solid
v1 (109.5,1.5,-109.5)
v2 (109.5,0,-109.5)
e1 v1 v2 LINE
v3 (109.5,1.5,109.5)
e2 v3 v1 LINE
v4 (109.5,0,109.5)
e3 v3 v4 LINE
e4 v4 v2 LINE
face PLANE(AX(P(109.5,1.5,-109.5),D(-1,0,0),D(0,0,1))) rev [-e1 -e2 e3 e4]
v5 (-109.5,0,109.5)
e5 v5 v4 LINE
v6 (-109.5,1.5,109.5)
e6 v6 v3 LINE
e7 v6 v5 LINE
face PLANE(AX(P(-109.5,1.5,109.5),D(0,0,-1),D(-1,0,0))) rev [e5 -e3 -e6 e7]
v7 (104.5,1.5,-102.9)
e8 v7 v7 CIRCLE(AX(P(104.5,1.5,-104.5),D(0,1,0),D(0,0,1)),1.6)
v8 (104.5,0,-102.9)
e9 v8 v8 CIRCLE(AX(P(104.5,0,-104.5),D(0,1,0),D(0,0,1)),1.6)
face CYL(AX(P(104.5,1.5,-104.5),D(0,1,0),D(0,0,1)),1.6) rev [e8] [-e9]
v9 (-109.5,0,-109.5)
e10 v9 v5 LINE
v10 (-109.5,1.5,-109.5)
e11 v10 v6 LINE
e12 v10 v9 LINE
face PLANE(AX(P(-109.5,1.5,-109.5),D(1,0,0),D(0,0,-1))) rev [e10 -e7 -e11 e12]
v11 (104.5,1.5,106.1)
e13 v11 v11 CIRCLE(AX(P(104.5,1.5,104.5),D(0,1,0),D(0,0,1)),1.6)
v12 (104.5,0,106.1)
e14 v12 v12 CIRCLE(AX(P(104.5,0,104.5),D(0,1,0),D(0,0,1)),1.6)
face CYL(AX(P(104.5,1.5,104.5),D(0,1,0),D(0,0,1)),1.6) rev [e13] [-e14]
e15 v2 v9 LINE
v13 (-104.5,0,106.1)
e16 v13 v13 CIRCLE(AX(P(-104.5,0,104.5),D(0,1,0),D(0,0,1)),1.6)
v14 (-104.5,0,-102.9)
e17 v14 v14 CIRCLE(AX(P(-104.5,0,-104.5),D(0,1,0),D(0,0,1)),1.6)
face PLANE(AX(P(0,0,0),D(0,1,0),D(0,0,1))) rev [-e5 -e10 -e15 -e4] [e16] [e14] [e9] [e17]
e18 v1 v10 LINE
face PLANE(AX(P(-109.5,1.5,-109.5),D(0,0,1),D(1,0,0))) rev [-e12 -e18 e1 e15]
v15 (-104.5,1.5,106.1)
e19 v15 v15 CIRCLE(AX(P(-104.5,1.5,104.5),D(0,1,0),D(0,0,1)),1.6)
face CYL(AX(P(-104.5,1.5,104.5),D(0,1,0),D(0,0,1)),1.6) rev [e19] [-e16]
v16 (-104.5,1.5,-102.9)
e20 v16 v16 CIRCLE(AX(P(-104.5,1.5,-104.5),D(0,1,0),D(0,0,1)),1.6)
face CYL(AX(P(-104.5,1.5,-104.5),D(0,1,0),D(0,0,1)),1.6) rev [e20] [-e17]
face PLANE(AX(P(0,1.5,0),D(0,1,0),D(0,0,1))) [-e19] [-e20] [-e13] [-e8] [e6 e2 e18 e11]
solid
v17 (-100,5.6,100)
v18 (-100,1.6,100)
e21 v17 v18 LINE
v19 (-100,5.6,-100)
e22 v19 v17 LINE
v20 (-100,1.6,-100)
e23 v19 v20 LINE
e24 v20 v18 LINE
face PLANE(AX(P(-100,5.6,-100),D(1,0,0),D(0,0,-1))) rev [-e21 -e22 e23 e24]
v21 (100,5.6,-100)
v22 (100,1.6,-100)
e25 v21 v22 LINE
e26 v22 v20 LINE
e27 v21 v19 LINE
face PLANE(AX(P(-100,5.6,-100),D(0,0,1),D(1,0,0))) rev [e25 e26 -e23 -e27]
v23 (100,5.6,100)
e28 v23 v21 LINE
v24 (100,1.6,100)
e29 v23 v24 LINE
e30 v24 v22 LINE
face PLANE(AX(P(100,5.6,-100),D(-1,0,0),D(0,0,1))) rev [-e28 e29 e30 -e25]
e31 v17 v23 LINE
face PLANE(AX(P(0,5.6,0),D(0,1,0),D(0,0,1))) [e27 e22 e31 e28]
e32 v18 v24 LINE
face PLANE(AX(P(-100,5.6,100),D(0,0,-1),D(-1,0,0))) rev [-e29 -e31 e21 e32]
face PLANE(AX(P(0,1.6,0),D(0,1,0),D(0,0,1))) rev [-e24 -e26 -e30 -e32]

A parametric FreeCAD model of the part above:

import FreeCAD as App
import Part
import Sketcher
Q = App.Units.Quantity

doc = App.newDocument("Part")
params = doc.addObject("Spreadsheet::Sheet", "Params")
for row, (alias, value) in enumerate([
    ("sketch1_width", "219 mm"),
    ("pad1_length", "1.5 mm"),
    ("sketch2_diameter", "3.2 mm"),
    ("hole_diameter", "3.2 mm"),
    ("sketch3_width", "200 mm"),
    ("pad2_length", "4 mm"),
], start=1):
    params.set(f"A{row}", alias)
    params.set(f"B{row}", "=" + value)
    params.setAlias(f"B{row}", alias)

body = doc.addObject("PartDesign::Body", "Body")

# Sketch on XZ plane
sketch1 = body.newObject("Sketcher::SketchObject", "Sketch")
sketch1.AttachmentSupport = (doc.getObject("XZ_Plane"), [""])
sketch1.MapMode = "FlatFace"
sketch1.addGeometry([
    Part.LineSegment(App.Vector(-110, -110, 0), App.Vector(-110, 110, 0)),
    Part.LineSegment(App.Vector(-110, 110, 0), App.Vector(110, 110, 0)),
    Part.LineSegment(App.Vector(110, 110, 0), App.Vector(110, -110, 0)),
    Part.LineSegment(App.Vector(110, -110, 0), App.Vector(-110, -110, 0)),
], False)
sketch1.addConstraint([
    Sketcher.Constraint("Coincident", 0, 2, 1, 1),
    Sketcher.Constraint("Coincident", 1, 2, 2, 1),
    Sketcher.Constraint("Coincident", 2, 2, 3, 1),
    Sketcher.Constraint("Coincident", 3, 2, 0, 1),
    Sketcher.Constraint("Vertical", 0),
    Sketcher.Constraint("Horizontal", 1),
    Sketcher.Constraint("Vertical", 2),
    Sketcher.Constraint("Horizontal", 3),
    Sketcher.Constraint("Symmetric", 0, 2, 2, 2, -1, 1),
    Sketcher.Constraint("Equal", 3, 0),
    Sketcher.Constraint("DistanceX", 1, 1, 1, 2, Q("219 mm")),
])
sketch1.setExpression("Constraints[10]", "Params.sketch1_width")
pad1 = body.newObject("PartDesign::Pad", "Pad")
pad1.Profile = sketch1
pad1.setExpression("Length", "Params.pad1_length")
pad1.Reversed = True

# Sketch on XZ plane
sketch2 = body.newObject("Sketcher::SketchObject", "Sketch001")
sketch2.AttachmentSupport = (doc.getObject("XZ_Plane"), [""])
sketch2.MapMode = "FlatFace"
sketch2.AttachmentOffset = App.Placement(App.Vector(0, 0, -1.5), App.Rotation())
sketch2.addGeometry([
    Part.Circle(App.Vector(-104.5, -104.5, 0), App.Vector(0, 0, 1), 1.6),
    Part.Circle(App.Vector(104.5, -104.5, 0), App.Vector(0, 0, 1), 1.6),
    Part.Circle(App.Vector(104.5, 104.5, 0), App.Vector(0, 0, 1), 1.6),
    Part.Circle(App.Vector(-104.5, 104.5, 0), App.Vector(0, 0, 1), 1.6),
], False)
sketch2.addConstraint([
    Sketcher.Constraint("Equal", 0, 1),
    Sketcher.Constraint("Equal", 1, 2),
    Sketcher.Constraint("Equal", 2, 3),
    Sketcher.Constraint("Symmetric", 0, 3, 2, 3, -1, 1),
    Sketcher.Constraint("Symmetric", 1, 3, 3, 3, -1, 1),
    Sketcher.Constraint("Symmetric", 0, 3, 1, 3, -2),
    Sketcher.Constraint("Diameter", 0, Q("3.2 mm")),
    Sketcher.Constraint("DistanceX", 0, 3, 1, 3, Q("209 mm")),
    Sketcher.Constraint("DistanceY", 1, 3, 2, 3, Q("209 mm")),
])
sketch2.setExpression("Constraints[6]", "Params.sketch2_diameter")
doc.recompute()
hole = body.newObject("PartDesign::Hole", "Hole")
hole.Profile = sketch2
hole.ThreadType = "None"
hole.setExpression("Diameter", "Params.hole_diameter")
hole.DepthType = "ThroughAll"
hole.Reversed = True
body2 = doc.addObject("PartDesign::Body", "Body001")

# Sketch on XZ plane
sketch3 = body2.newObject("Sketcher::SketchObject", "Sketch002")
sketch3.AttachmentSupport = (doc.getObject("XZ_Plane001"), [""])
sketch3.MapMode = "FlatFace"
sketch3.AttachmentOffset = App.Placement(App.Vector(0, 0, -1.6), App.Rotation())
sketch3.addGeometry([
    Part.LineSegment(App.Vector(-100, -100, 0), App.Vector(-100, 100, 0)),
    Part.LineSegment(App.Vector(-100, 100, 0), App.Vector(100, 100, 0)),
    Part.LineSegment(App.Vector(100, 100, 0), App.Vector(100, -100, 0)),
    Part.LineSegment(App.Vector(100, -100, 0), App.Vector(-100, -100, 0)),
], False)
sketch3.addConstraint([
    Sketcher.Constraint("Coincident", 0, 2, 1, 1),
    Sketcher.Constraint("Coincident", 1, 2, 2, 1),
    Sketcher.Constraint("Coincident", 2, 2, 3, 1),
    Sketcher.Constraint("Coincident", 3, 2, 0, 1),
    Sketcher.Constraint("Vertical", 0),
    Sketcher.Constraint("Horizontal", 1),
    Sketcher.Constraint("Vertical", 2),
    Sketcher.Constraint("Horizontal", 3),
    Sketcher.Constraint("Symmetric", 0, 2, 2, 2, -1, 1),
    Sketcher.Constraint("Equal", 3, 0),
    Sketcher.Constraint("DistanceX", 1, 1, 1, 2, Q("200 mm")),
])
sketch3.setExpression("Constraints[10]", "Params.sketch3_width")
pad2 = body2.newObject("PartDesign::Pad", "Pad001")
pad2.Profile = sketch3
pad2.setExpression("Length", "Params.pad2_length")
pad2.Reversed = True

doc.recompute()
